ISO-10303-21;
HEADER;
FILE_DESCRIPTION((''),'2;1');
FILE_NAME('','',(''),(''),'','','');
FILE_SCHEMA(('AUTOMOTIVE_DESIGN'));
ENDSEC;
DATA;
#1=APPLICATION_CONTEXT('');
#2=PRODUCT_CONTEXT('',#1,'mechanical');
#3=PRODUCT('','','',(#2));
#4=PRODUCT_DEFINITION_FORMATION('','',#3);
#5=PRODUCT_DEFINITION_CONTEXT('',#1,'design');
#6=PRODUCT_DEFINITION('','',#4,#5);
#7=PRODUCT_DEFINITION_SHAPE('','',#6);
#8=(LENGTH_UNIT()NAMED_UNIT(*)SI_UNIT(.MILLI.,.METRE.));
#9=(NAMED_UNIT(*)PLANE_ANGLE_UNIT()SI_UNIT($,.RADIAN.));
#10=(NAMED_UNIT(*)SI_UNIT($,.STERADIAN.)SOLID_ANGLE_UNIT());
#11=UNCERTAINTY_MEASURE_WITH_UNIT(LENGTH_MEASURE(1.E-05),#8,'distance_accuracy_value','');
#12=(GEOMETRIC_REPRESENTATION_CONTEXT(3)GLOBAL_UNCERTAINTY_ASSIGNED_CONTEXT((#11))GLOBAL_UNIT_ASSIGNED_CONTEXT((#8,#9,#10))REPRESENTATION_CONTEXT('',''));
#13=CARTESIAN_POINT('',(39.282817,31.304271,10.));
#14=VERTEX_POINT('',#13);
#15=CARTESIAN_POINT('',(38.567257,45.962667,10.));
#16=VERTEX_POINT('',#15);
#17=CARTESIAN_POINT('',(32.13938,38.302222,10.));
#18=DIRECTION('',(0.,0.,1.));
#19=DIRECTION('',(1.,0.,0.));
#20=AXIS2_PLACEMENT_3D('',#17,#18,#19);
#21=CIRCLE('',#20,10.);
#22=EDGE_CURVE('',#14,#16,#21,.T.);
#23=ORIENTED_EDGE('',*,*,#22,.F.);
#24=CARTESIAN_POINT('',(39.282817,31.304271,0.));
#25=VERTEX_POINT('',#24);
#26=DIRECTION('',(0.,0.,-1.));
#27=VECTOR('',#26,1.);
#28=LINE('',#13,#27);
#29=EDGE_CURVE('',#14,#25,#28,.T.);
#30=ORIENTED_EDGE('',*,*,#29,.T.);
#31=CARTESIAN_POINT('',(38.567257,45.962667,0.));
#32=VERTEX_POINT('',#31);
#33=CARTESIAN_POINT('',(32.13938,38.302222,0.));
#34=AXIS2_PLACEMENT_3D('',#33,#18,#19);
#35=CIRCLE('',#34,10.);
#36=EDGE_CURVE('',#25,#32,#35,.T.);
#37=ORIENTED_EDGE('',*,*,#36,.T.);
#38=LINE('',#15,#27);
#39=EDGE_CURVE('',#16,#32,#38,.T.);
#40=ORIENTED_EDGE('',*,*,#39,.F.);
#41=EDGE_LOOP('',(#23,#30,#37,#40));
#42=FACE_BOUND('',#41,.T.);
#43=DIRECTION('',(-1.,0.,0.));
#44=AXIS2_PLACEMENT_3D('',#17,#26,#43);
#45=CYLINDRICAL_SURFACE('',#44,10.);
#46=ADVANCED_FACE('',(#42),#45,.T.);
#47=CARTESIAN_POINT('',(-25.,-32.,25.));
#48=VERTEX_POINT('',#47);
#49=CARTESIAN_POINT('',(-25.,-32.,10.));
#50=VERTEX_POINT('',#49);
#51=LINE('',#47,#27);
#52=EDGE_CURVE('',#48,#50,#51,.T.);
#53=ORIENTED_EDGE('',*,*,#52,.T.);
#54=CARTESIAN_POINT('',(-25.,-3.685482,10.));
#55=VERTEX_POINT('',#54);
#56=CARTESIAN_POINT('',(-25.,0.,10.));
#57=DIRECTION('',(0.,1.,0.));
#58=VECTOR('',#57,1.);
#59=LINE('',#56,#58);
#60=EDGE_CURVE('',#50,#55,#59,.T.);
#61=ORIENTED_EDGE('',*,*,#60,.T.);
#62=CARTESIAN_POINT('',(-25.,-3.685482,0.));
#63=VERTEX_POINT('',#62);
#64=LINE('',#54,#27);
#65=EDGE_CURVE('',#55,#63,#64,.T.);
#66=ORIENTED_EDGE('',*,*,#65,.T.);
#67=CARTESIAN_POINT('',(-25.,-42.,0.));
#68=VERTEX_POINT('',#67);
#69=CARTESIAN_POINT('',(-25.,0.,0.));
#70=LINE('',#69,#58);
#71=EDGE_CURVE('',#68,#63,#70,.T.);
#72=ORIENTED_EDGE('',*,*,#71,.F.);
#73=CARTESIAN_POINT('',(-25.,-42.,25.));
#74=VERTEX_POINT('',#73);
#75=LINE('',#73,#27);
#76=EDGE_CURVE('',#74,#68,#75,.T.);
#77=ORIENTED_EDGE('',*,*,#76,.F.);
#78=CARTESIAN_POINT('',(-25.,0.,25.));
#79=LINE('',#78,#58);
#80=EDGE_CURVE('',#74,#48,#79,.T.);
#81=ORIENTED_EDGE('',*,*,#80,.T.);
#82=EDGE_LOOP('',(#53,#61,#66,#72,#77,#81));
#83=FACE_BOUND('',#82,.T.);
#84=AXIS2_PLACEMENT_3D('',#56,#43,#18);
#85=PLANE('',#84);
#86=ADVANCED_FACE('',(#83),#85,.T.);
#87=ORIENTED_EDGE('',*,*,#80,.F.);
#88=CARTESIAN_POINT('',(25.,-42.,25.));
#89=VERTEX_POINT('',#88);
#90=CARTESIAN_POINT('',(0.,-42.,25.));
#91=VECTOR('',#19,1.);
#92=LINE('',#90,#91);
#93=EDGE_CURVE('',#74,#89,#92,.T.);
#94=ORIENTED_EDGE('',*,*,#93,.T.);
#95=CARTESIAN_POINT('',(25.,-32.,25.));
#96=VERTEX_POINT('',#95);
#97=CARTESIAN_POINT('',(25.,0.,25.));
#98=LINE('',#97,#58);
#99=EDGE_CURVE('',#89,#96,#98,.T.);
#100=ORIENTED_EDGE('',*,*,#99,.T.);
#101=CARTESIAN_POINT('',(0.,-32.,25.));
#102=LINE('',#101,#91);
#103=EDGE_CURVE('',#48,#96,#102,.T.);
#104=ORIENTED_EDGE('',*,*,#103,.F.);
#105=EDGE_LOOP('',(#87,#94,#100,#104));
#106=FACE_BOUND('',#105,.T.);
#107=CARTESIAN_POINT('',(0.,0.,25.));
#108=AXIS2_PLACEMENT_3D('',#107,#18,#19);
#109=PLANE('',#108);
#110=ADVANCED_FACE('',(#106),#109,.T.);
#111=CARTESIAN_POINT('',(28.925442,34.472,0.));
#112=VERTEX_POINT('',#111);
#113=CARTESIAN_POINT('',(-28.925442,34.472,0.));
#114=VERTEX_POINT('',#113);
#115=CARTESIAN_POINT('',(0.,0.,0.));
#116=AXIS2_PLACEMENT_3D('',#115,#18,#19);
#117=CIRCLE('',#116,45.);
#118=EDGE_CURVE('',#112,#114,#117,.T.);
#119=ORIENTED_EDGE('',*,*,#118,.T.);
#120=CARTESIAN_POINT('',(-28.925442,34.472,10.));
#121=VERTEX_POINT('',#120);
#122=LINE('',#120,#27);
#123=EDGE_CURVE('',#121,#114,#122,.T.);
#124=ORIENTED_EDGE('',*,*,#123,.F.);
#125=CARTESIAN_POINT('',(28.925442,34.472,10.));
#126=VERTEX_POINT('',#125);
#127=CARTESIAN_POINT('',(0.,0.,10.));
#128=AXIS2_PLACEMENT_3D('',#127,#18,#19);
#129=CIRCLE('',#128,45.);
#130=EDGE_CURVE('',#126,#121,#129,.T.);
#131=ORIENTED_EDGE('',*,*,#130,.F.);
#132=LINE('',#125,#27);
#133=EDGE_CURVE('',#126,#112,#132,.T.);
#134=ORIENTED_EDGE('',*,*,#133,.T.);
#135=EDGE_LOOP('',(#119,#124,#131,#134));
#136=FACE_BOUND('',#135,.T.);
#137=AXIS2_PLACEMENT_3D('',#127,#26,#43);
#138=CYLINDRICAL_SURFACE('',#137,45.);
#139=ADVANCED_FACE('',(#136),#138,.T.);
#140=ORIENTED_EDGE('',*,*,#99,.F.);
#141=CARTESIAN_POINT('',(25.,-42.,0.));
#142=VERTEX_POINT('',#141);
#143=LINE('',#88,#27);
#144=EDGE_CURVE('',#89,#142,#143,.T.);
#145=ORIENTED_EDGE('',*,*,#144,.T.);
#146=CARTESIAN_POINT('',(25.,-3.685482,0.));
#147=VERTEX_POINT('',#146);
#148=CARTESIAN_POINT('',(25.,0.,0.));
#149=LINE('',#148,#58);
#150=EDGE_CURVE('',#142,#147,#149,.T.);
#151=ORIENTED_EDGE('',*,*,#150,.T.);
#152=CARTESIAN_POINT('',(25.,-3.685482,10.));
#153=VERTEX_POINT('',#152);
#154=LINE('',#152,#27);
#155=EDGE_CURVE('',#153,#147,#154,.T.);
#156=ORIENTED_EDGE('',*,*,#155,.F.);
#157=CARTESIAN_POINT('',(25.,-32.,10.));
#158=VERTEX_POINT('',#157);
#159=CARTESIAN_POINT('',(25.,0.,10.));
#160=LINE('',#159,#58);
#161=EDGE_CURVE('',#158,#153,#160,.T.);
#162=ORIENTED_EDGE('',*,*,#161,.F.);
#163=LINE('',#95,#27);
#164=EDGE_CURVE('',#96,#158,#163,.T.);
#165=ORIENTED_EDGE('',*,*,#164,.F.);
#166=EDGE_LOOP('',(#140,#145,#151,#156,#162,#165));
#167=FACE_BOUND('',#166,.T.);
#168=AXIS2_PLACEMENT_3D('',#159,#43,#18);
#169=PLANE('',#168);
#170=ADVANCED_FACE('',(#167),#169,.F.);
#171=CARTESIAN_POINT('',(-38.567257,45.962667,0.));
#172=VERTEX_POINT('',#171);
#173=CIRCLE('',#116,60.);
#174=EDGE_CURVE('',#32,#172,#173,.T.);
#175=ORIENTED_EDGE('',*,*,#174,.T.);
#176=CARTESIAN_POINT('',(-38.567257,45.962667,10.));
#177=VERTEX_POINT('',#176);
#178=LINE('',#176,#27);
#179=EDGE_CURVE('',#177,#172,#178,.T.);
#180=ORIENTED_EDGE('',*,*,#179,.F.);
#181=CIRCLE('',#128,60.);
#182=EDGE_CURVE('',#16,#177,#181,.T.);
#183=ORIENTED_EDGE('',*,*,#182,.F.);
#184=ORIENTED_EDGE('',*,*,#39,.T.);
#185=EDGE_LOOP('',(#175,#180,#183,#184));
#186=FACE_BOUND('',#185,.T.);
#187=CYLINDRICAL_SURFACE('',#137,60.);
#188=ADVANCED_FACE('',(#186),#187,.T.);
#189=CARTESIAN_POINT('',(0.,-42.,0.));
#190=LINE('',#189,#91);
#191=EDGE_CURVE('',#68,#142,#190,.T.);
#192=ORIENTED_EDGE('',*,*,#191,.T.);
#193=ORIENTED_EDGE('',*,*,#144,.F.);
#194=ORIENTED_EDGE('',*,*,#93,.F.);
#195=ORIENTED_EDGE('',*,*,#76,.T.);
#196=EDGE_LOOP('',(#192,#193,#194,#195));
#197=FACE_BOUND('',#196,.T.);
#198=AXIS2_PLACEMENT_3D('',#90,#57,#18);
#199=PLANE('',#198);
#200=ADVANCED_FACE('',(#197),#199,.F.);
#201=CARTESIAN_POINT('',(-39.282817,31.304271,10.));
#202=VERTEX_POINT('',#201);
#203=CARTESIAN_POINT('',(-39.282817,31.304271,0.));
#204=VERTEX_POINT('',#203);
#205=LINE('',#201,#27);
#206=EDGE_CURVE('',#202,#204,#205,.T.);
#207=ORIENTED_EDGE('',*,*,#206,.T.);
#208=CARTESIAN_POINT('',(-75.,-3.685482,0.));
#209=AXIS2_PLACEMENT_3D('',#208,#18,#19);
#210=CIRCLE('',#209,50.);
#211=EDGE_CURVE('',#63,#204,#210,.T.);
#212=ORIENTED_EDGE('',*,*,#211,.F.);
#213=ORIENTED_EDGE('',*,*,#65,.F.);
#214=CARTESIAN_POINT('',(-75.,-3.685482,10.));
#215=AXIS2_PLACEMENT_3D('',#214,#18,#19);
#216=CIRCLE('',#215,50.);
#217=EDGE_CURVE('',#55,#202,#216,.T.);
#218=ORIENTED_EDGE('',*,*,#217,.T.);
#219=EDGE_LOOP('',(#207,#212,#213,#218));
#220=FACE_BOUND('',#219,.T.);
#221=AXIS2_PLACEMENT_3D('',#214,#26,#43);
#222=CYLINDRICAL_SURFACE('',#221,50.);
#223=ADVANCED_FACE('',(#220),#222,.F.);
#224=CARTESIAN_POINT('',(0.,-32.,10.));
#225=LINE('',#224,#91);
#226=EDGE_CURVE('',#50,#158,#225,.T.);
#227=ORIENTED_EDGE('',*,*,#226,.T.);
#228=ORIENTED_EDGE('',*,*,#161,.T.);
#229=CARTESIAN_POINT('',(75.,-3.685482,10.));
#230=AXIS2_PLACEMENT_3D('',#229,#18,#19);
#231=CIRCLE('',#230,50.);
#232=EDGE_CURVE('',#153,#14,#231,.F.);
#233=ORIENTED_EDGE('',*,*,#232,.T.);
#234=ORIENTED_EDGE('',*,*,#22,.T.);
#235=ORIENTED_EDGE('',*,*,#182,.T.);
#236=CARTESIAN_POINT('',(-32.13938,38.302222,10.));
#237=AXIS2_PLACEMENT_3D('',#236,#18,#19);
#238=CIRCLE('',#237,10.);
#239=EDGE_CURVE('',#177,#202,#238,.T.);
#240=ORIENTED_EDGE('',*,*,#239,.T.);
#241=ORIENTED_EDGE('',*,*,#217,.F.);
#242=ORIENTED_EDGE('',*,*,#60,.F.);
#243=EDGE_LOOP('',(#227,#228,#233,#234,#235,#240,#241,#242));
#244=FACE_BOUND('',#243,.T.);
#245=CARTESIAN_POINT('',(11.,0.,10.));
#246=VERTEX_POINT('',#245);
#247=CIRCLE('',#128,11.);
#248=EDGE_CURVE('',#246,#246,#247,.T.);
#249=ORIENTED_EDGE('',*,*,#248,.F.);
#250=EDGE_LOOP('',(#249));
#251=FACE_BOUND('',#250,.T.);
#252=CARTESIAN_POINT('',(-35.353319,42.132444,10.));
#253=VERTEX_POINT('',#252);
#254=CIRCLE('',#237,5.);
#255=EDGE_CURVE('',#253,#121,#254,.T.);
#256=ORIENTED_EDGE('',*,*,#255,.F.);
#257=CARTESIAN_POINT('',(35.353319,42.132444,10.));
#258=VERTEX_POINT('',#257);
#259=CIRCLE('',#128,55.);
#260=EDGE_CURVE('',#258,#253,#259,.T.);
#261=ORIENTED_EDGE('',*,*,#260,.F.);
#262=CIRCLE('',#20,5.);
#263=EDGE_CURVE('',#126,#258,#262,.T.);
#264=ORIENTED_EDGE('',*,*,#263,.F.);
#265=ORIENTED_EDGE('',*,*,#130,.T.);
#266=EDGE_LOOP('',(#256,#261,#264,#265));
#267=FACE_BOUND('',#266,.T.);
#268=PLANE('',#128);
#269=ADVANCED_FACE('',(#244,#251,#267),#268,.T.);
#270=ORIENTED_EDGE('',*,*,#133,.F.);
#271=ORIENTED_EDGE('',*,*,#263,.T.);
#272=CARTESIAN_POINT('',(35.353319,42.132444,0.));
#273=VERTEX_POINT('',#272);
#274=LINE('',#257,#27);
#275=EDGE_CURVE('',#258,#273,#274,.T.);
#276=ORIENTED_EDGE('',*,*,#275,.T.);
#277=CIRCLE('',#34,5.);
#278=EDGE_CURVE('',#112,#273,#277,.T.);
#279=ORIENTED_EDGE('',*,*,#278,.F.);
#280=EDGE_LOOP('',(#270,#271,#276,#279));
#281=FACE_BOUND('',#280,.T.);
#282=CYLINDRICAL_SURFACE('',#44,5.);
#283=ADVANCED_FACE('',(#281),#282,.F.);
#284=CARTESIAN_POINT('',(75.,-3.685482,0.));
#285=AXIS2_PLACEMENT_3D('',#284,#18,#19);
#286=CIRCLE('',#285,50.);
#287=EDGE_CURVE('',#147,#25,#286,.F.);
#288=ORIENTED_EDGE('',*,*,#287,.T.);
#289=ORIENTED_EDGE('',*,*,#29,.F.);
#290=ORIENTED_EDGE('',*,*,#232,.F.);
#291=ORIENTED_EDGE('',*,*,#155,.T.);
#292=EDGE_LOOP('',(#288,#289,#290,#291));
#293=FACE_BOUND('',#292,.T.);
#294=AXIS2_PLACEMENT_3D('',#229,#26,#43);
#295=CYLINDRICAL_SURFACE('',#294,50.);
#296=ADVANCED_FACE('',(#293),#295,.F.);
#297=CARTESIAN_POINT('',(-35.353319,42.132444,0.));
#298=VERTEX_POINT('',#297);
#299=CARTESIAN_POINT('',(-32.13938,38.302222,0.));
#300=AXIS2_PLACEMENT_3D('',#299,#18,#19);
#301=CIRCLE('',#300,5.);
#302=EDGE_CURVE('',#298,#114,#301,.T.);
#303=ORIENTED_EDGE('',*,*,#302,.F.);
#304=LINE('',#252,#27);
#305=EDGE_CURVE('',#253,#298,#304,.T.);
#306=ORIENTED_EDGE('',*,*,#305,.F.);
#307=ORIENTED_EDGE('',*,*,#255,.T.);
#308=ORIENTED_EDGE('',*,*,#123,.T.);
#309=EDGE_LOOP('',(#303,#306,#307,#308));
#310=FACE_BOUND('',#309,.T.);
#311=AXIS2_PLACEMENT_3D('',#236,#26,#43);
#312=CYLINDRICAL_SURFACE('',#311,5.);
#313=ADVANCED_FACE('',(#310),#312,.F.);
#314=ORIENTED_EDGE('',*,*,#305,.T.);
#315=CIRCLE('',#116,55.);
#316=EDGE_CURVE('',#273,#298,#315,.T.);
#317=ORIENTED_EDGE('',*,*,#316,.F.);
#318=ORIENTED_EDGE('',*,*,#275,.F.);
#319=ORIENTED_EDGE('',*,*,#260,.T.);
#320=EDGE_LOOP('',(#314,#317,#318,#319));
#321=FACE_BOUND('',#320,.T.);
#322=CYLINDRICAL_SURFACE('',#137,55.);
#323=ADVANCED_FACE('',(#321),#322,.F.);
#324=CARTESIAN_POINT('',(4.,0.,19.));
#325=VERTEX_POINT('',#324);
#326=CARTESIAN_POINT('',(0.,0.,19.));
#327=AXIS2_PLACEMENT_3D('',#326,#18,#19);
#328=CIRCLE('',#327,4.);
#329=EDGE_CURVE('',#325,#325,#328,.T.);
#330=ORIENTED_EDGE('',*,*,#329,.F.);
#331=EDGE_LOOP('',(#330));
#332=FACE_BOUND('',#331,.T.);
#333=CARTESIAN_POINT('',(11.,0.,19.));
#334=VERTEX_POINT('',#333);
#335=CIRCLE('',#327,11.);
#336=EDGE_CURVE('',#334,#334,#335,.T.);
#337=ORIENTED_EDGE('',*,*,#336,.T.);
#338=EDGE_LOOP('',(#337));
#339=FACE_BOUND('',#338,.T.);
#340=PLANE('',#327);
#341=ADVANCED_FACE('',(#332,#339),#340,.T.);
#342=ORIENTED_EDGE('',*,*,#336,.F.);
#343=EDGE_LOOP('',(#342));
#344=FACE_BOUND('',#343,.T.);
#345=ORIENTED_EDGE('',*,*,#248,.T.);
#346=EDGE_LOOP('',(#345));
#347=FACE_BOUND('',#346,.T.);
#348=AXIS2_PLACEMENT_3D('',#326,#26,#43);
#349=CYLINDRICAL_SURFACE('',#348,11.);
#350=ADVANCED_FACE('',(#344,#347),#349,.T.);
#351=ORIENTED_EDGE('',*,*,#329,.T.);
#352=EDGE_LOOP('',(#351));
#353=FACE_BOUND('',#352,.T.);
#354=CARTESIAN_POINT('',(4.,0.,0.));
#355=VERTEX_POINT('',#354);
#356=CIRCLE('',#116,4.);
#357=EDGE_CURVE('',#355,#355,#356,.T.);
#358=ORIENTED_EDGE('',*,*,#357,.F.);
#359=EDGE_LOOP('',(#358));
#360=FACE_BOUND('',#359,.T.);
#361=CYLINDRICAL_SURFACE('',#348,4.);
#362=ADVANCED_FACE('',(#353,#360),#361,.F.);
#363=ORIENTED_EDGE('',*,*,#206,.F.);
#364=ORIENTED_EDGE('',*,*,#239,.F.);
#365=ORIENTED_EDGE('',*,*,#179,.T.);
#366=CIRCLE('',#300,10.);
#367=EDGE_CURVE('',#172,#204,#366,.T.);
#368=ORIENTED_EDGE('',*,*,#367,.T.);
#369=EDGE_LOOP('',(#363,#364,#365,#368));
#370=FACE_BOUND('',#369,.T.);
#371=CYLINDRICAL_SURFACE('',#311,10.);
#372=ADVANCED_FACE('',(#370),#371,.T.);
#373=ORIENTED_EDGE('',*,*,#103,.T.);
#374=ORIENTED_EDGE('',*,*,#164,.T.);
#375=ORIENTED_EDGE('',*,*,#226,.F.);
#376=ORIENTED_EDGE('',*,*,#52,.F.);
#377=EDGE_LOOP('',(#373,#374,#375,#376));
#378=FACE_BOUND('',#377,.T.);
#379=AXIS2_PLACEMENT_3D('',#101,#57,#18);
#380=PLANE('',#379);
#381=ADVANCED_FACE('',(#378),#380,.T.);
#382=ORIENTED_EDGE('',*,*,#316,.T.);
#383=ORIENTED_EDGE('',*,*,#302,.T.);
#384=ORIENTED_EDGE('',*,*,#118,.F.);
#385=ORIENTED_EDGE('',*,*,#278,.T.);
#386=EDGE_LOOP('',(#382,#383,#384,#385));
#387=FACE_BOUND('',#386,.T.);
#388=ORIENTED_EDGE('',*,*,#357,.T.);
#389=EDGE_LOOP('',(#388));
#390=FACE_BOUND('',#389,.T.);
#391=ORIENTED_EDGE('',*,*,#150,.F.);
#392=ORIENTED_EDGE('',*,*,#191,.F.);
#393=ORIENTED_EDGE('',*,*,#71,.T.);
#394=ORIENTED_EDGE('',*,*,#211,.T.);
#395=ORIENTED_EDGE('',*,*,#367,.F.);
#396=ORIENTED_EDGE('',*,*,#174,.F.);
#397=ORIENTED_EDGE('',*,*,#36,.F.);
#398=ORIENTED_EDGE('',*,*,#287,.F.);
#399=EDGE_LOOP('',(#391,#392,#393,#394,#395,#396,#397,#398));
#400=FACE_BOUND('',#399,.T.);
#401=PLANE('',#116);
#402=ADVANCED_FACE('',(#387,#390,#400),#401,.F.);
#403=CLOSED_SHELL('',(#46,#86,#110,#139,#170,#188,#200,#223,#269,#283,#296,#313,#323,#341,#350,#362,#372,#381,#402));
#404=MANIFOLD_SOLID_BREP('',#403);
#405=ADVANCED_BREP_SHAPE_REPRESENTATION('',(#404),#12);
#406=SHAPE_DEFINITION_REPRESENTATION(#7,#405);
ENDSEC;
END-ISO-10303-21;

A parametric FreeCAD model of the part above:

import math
import FreeCAD as App
import Part
import Sketcher
from FreeCAD import Vector


def add_polygon(sketch, points):
    """Adds a closed chain of lines whose ends are joined by coincident constraints."""
    first, n = sketch.GeometryCount, len(points)
    for a, b in zip(points, points[1:] + points[:1]):
        sketch.addGeometry(Part.LineSegment(App.Vector(*a, 0), App.Vector(*b, 0)), False)
    for i in range(n):
        sketch.addConstraint(Sketcher.Constraint("Coincident", first + i, 2, first + (i + 1) % n, 1))

doc = App.newDocument("Part")
params = doc.addObject("Spreadsheet::Sheet", "Params")
for row, (alias, value) in enumerate([
    ("sketch1_diameter", "22 mm"),
    ("sketch1_radius", "50 mm"),
    ("sketch1_radius2", "10 mm"),
    ("sketch1_radius3", "60 mm"),
    ("sketch1_radius4", "45 mm"),
    ("pad1_length", "10 mm"),
    ("sketch2_width", "50 mm"),
    ("sketch2_height", "10 mm"),
    ("pad2_length", "25 mm"),
    ("sketch3_diameter", "22 mm"),
    ("sketch3_diameter2", "8 mm"),
    ("pad3_length", "19 mm"),
], start=1):
    params.set(f"A{row}", alias)
    params.set(f"B{row}", "=" + value)
    params.setAlias(f"B{row}", alias)

body = doc.addObject("PartDesign::Body", "Body")

sketch1 = body.newObject("Sketcher::SketchObject", "Sketch")
sketch1.AttachmentSupport = (doc.getObject("XY_Plane"), [""])
sketch1.MapMode = "FlatFace"
sketch1.addGeometry(Part.LineSegment(Vector(-25, -4, 0), Vector(-25, -32, 0)), False)
sketch1.addGeometry(Part.LineSegment(Vector(-25, -32, 0), Vector(25, -32, 0)), False)
sketch1.addGeometry(Part.LineSegment(Vector(25, -32, 0), Vector(25, -4, 0)), False)
sketch1.addGeometry(Part.ArcOfCircle(Part.Circle(Vector(75, -4, 0), Vector(0, 0, 1), 50), math.radians(136), math.radians(180)), False)
sketch1.addGeometry(Part.ArcOfCircle(Part.Circle(Vector(32, 38, 0), Vector(0, 0, 1), 10), math.radians(-44), math.radians(50)), False)
sketch1.addGeometry(Part.ArcOfCircle(Part.Circle(Vector(0, 0, 0), Vector(0, 0, 1), 60), math.radians(50), math.radians(130)), False)
sketch1.addGeometry(Part.ArcOfCircle(Part.Circle(Vector(-32, 38, 0), Vector(0, 0, 1), 10), math.radians(130), math.radians(224)), False)
sketch1.addGeometry(Part.ArcOfCircle(Part.Circle(Vector(-75, -4, 0), Vector(0, 0, 1), 50), math.radians(0), math.radians(44)), False)
sketch1.addGeometry(Part.Circle(Vector(0, 0, 0), Vector(0, 0, 1), 11), False)
sketch1.addGeometry(Part.ArcOfCircle(Part.Circle(Vector(0, 0, 0), Vector(0, 0, 1), 45), math.radians(50), math.radians(130)), False)
sketch1.addGeometry(Part.ArcOfCircle(Part.Circle(Vector(-32, 38, 0), Vector(0, 0, 1), 5), math.radians(130), math.radians(310)), False)
sketch1.addGeometry(Part.ArcOfCircle(Part.Circle(Vector(0, 0, 0), Vector(0, 0, 1), 55), math.radians(50), math.radians(130)), False)
sketch1.addGeometry(Part.ArcOfCircle(Part.Circle(Vector(32, 38, 0), Vector(0, 0, 1), 5), math.radians(-130), math.radians(50)), False)
sketch1.addConstraint(Sketcher.Constraint("Coincident", 0, 2, 1, 1))
sketch1.addConstraint(Sketcher.Constraint("Coincident", 1, 2, 2, 1))
sketch1.addConstraint(Sketcher.Constraint("Tangent", 2, 2, 3, 2))
sketch1.addConstraint(Sketcher.Constraint("Tangent", 3, 1, 4, 1))
sketch1.addConstraint(Sketcher.Constraint("Tangent", 4, 2, 5, 1))
sketch1.addConstraint(Sketcher.Constraint("Tangent", 5, 2, 6, 1))
sketch1.addConstraint(Sketcher.Constraint("Tangent", 6, 2, 7, 2))
sketch1.addConstraint(Sketcher.Constraint("Tangent", 7, 1, 0, 1))
sketch1.addConstraint(Sketcher.Constraint("Tangent", 9, 2, 10, 2))
sketch1.addConstraint(Sketcher.Constraint("Tangent", 10, 1, 11, 2))
sketch1.addConstraint(Sketcher.Constraint("Tangent", 11, 1, 12, 2))
sketch1.addConstraint(Sketcher.Constraint("Tangent", 12, 1, 9, 1))
sketch1.addConstraint(Sketcher.Constraint("Vertical", 0))
sketch1.addConstraint(Sketcher.Constraint("Horizontal", 1))
sketch1.addConstraint(Sketcher.Constraint("Vertical", 2))
sketch1.addConstraint(Sketcher.Constraint("Coincident", 5, 3, -1, 1))
sketch1.addConstraint(Sketcher.Constraint("Coincident", 8, 3, -1, 1))
sketch1.addConstraint(Sketcher.Constraint("Coincident", 9, 3, -1, 1))
sketch1.addConstraint(Sketcher.Constraint("Coincident", 11, 3, -1, 1))
sketch1.addConstraint(Sketcher.Constraint("Coincident", 10, 3, 6, 3))
sketch1.addConstraint(Sketcher.Constraint("Coincident", 12, 3, 4, 3))
sketch1.addConstraint(Sketcher.Constraint("Equal", 3, 7))
sketch1.addConstraint(Sketcher.Constraint("Symmetric", 3, 3, 7, 3, -2))
sketch1.addConstraint(Sketcher.Constraint("Diameter", 8, 22.0))
sketch1.addConstraint(Sketcher.Constraint("Radius", 3, 50.0))
sketch1.addConstraint(Sketcher.Constraint("Radius", 4, 10.0))
sketch1.addConstraint(Sketcher.Constraint("Radius", 5, 60.0))
sketch1.addConstraint(Sketcher.Constraint("Radius", 9, 45.0))
sketch1.addConstraint(Sketcher.Constraint("DistanceX", 1, 1, 1, 2, 50.0))
sketch1.addConstraint(Sketcher.Constraint("DistanceY", 0, 2, -1, 1, 32.0))
sketch1.addConstraint(Sketcher.Constraint("DistanceY", -1, 1, 9, 2, 34.472))
sketch1.setExpression("Constraints[23]", "Params.sketch1_diameter")
sketch1.setExpression("Constraints[24]", "Params.sketch1_radius")
sketch1.setExpression("Constraints[25]", "Params.sketch1_radius2")
sketch1.setExpression("Constraints[26]", "Params.sketch1_radius3")
sketch1.setExpression("Constraints[27]", "Params.sketch1_radius4")
pad1 = body.newObject("PartDesign::Pad", "Pad")
pad1.Profile = sketch1
pad1.setExpression("Length", "Params.pad1_length")

sketch2 = body.newObject("Sketcher::SketchObject", "Sketch001")
sketch2.AttachmentSupport = (doc.getObject("XY_Plane"), [""])
sketch2.MapMode = "FlatFace"
add_polygon(sketch2, [(-25, -32), (-25, -42), (25, -42), (25, -32)])
sketch2.addConstraint(Sketcher.Constraint("Vertical", 0))
sketch2.addConstraint(Sketcher.Constraint("Horizontal", 1))
sketch2.addConstraint(Sketcher.Constraint("Vertical", 2))
sketch2.addConstraint(Sketcher.Constraint("Horizontal", 3))
sketch2.addConstraint(Sketcher.Constraint("DistanceX", 1, 1, 1, 2, 50.0))
sketch2.addConstraint(Sketcher.Constraint("DistanceY", 0, 2, 0, 1, 10.0))
sketch2.addConstraint(Sketcher.Constraint("DistanceX", 0, 2, -1, 1, 25.0))
sketch2.addConstraint(Sketcher.Constraint("DistanceY", 0, 2, -1, 1, 42.0))
sketch2.setExpression("Constraints[8]", "Params.sketch2_width")
sketch2.setExpression("Constraints[9]", "Params.sketch2_height")
pad2 = body.newObject("PartDesign::Pad", "Pad001")
pad2.Profile = sketch2
pad2.setExpression("Length", "Params.pad2_length")

sketch3 = body.newObject("Sketcher::SketchObject", "Sketch002")
sketch3.AttachmentSupport = (doc.getObject("XY_Plane"), [""])
sketch3.MapMode = "FlatFace"
sketch3.addGeometry(Part.Circle(Vector(0, 0, 0), Vector(0, 0, 1), 11), False)
sketch3.addGeometry(Part.Circle(Vector(0, 0, 0), Vector(0, 0, 1), 4), False)
sketch3.addConstraint(Sketcher.Constraint("Coincident", 0, 3, -1, 1))
sketch3.addConstraint(Sketcher.Constraint("Coincident", 1, 3, -1, 1))
sketch3.addConstraint(Sketcher.Constraint("Diameter", 0, 22.0))
sketch3.addConstraint(Sketcher.Constraint("Diameter", 1, 8.0))
sketch3.setExpression("Constraints[2]", "Params.sketch3_diameter")
sketch3.setExpression("Constraints[3]", "Params.sketch3_diameter2")
pad3 = body.newObject("PartDesign::Pad", "Pad002")
pad3.Profile = sketch3
pad3.setExpression("Length", "Params.pad3_length")

doc.recompute()
